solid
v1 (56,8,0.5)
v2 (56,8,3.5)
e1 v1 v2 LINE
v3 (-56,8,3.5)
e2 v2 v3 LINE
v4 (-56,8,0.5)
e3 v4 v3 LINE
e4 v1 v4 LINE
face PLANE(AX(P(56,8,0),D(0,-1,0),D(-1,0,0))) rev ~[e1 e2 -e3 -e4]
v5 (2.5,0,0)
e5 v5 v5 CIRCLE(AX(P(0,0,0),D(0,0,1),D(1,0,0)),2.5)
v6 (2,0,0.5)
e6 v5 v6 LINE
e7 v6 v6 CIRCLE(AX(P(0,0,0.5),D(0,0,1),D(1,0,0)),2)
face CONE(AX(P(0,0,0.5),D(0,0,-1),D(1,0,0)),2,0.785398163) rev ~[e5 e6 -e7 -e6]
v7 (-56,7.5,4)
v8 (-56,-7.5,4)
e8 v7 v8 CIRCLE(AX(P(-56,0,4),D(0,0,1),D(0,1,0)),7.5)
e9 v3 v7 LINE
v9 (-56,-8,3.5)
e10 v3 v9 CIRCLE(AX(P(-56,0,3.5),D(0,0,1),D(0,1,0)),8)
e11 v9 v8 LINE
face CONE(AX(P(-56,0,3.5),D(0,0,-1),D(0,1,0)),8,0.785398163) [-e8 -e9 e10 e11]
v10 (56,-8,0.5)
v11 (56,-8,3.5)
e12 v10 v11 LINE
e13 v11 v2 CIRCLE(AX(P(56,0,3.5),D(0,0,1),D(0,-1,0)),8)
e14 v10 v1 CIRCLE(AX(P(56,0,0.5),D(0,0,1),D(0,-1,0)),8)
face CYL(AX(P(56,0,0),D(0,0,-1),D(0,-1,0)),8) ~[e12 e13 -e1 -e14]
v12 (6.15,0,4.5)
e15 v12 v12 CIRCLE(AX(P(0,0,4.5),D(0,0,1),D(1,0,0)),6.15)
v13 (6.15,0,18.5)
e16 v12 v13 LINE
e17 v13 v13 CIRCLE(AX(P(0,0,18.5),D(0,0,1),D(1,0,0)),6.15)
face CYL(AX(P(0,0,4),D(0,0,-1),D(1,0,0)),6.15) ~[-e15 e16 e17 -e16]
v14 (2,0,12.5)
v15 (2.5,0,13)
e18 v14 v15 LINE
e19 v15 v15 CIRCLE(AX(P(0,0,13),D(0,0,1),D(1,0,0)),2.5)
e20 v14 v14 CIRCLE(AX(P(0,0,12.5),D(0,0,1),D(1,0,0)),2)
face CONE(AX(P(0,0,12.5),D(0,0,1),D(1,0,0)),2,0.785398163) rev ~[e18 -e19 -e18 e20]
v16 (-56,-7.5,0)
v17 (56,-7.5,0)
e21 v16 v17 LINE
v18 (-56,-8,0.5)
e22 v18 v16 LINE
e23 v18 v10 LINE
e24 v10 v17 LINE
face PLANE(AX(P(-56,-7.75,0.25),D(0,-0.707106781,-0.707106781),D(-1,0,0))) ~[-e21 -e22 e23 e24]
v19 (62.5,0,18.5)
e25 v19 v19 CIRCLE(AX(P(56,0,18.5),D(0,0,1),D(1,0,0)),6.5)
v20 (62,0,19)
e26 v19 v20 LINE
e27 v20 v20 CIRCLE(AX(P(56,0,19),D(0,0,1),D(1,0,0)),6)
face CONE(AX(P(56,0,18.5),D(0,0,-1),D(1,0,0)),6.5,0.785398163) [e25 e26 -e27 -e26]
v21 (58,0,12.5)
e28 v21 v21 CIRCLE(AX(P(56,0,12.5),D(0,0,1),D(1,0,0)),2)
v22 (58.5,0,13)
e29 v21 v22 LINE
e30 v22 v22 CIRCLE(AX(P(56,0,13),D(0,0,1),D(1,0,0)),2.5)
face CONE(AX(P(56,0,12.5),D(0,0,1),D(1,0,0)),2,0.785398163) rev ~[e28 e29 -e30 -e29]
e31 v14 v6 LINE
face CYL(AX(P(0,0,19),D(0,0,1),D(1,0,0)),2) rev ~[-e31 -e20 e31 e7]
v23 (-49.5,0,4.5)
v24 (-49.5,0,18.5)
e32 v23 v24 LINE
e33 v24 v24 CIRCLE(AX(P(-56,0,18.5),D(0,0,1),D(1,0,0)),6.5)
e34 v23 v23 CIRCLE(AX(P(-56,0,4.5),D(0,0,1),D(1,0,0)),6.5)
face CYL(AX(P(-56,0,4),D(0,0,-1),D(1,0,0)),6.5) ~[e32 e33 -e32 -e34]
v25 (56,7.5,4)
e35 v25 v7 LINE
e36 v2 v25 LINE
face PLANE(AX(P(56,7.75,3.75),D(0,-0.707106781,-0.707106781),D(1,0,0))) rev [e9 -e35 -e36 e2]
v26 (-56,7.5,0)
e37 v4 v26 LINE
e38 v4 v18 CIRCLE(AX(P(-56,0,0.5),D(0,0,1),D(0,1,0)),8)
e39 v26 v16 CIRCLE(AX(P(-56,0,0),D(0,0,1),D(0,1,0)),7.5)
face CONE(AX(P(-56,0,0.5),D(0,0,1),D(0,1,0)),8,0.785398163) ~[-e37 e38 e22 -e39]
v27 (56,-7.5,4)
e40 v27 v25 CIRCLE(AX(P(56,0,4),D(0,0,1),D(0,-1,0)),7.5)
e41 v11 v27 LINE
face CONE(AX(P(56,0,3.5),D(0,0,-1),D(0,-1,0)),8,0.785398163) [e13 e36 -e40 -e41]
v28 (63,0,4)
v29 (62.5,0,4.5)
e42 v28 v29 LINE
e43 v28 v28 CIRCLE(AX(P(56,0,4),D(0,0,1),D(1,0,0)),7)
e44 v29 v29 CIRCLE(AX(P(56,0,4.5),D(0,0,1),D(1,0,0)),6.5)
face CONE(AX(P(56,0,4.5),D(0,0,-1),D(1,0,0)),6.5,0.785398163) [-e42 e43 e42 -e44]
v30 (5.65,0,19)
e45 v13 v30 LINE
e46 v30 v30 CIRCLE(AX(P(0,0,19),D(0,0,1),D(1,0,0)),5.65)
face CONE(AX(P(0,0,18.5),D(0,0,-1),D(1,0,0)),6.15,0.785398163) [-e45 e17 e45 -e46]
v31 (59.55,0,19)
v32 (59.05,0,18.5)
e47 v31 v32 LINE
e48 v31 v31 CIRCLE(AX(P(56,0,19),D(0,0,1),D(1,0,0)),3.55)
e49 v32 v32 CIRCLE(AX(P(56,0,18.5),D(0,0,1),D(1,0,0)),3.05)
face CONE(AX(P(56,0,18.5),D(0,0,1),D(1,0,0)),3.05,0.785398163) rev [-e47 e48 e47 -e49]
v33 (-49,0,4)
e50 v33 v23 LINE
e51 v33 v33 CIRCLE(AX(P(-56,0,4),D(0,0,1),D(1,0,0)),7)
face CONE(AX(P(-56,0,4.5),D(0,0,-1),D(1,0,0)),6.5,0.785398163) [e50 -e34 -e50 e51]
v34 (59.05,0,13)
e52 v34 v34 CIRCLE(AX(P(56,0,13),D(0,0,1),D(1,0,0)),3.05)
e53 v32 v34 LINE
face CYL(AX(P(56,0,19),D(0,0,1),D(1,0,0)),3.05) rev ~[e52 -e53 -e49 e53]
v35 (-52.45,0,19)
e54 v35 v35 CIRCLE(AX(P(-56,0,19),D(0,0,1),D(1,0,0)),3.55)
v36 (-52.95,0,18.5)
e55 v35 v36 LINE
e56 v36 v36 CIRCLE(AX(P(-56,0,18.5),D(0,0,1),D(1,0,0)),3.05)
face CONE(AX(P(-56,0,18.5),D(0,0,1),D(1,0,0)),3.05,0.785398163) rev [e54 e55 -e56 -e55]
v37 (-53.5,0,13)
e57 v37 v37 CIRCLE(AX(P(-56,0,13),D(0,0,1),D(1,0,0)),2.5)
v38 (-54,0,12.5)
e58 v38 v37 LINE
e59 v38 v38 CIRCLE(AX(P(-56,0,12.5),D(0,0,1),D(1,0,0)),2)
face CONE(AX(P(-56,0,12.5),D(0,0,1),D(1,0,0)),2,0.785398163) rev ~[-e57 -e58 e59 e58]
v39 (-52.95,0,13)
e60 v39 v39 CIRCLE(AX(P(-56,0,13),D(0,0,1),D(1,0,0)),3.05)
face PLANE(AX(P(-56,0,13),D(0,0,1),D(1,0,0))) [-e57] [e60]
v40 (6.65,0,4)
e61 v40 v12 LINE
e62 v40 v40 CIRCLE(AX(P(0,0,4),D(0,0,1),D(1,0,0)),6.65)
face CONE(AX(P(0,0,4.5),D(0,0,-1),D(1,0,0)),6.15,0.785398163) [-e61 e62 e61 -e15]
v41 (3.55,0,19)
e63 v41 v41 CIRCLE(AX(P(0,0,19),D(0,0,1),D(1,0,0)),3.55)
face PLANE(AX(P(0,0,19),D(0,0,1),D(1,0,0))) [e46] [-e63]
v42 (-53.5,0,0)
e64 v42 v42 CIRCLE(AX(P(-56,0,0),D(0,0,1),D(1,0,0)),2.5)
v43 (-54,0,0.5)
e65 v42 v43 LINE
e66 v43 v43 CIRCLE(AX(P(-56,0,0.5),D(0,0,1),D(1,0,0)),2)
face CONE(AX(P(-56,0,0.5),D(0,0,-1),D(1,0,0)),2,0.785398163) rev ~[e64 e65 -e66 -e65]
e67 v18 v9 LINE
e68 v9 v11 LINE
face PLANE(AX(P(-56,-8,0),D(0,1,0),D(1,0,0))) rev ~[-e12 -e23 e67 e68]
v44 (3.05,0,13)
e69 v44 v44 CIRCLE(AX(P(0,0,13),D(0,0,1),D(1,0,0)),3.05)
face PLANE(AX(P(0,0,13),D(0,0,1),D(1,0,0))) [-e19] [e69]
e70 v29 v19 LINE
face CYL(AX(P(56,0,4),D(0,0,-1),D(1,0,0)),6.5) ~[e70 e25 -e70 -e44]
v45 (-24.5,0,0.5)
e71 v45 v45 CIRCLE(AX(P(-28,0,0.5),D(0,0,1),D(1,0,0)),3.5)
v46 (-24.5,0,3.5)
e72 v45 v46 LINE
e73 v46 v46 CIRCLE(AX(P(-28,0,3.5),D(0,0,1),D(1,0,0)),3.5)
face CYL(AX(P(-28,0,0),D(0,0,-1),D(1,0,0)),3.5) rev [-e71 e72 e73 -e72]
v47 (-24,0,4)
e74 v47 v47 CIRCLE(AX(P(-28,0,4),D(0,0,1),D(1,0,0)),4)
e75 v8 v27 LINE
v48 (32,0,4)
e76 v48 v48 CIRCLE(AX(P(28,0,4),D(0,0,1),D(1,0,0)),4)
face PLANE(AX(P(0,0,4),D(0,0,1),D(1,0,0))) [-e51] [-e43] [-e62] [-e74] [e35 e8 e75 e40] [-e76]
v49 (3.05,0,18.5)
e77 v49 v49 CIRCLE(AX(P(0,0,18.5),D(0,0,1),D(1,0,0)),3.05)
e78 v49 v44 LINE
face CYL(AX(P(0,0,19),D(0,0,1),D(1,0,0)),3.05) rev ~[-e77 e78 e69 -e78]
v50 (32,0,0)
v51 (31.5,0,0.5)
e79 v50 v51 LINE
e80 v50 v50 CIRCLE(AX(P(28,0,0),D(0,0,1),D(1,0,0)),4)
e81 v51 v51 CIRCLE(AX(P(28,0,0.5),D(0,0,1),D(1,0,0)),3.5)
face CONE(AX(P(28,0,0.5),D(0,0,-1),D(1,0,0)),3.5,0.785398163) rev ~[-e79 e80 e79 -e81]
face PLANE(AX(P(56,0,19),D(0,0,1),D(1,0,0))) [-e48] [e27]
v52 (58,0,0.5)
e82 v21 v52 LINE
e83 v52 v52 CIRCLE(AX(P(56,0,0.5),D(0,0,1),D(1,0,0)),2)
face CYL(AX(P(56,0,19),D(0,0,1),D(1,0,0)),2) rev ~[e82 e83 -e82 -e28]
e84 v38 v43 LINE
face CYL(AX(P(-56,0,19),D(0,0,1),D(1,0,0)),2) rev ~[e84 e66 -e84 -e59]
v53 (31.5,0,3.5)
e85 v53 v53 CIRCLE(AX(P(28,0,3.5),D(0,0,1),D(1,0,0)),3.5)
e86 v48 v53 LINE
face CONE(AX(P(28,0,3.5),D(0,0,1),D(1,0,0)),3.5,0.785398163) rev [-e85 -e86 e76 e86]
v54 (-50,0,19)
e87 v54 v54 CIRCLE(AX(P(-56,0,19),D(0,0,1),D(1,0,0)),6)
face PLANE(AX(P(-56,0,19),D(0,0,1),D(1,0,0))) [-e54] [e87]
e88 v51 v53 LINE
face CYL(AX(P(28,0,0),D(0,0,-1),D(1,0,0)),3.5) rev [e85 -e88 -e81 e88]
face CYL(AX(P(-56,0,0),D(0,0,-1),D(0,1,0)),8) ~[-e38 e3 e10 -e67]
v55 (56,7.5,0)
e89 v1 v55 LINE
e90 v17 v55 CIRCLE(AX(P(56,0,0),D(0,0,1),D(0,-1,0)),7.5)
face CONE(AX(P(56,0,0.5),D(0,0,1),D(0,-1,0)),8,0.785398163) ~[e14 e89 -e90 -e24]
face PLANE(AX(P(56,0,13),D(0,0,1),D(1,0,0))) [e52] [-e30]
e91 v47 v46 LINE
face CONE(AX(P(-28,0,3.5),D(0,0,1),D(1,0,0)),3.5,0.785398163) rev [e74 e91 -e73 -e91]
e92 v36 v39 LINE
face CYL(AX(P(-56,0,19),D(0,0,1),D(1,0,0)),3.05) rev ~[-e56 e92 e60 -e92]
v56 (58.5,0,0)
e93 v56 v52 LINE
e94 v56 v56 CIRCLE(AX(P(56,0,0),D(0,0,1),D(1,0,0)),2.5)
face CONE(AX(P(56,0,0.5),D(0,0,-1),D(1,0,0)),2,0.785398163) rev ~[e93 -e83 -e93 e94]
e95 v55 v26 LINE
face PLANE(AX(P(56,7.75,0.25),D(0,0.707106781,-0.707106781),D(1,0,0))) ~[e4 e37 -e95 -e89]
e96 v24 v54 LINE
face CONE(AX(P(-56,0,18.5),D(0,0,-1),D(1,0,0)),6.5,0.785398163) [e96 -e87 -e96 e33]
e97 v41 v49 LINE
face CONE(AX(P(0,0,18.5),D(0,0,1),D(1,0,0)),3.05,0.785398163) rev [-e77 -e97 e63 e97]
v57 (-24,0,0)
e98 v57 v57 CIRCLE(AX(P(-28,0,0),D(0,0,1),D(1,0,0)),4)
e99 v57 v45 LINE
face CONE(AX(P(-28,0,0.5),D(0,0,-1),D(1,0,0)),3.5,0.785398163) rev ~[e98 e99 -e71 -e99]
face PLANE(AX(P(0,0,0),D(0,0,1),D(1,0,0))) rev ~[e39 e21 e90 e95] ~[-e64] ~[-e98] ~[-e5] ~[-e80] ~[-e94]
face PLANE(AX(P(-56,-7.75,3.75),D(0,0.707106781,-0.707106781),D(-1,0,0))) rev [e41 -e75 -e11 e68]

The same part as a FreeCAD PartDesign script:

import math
import FreeCAD as App
import Part
import Sketcher

V = App.Vector


def edges_at(feature, points):
    """Names of the edges that pass closest to the given points."""
    edges = feature.Shape.Edges
    near = lambda p: min(range(len(edges)), key=lambda i: edges[i].distToShape(Part.Vertex(*p))[0])
    return sorted({f"Edge{near(p) + 1}" for p in points})

doc = App.newDocument("Part")
body = doc.addObject("PartDesign::Body", "Body")

# Sketch on XY plane
sketch1 = body.newObject("Sketcher::SketchObject", "Sketch")
sketch1.AttachmentSupport = (doc.getObject("XY_Plane"), [""])
sketch1.MapMode = "FlatFace"
sketch1.addGeometry(Part.LineSegment(V(-56, -8, 0), V(56, -8, 0)), False)
sketch1.addGeometry(Part.ArcOfCircle(Part.Circle(V(56, 0, 0), V(0, 0, 1), 8), math.radians(-90), math.radians(90)), False)
sketch1.addGeometry(Part.LineSegment(V(56, 8, 0), V(-56, 8, 0)), False)
sketch1.addGeometry(Part.ArcOfCircle(Part.Circle(V(-56, 0, 0), V(0, 0, 1), 8), math.radians(90), math.radians(270)), False)
sketch1.addGeometry(Part.Circle(V(-28, 0, 0), V(0, 0, 1), 3.5), False)
sketch1.addGeometry(Part.Circle(V(28, 0, 0), V(0, 0, 1), 3.5), False)
sketch1.addConstraint(Sketcher.Constraint("Tangent", 0, 2, 1, 1))
sketch1.addConstraint(Sketcher.Constraint("Tangent", 1, 2, 2, 1))
sketch1.addConstraint(Sketcher.Constraint("Tangent", 2, 2, 3, 1))
sketch1.addConstraint(Sketcher.Constraint("Tangent", 3, 2, 0, 1))
sketch1.addConstraint(Sketcher.Constraint("Horizontal", 0))
sketch1.addConstraint(Sketcher.Constraint("Horizontal", 2))
sketch1.addConstraint(Sketcher.Constraint("Equal", 4, 5))
sketch1.addConstraint(Sketcher.Constraint("Symmetric", 1, 3, 3, 3, -1, 1))
sketch1.addConstraint(Sketcher.Constraint("Symmetric", 4, 3, 5, 3, -1, 1))
sketch1.addConstraint(Sketcher.Constraint("PointOnObject", 4, 3, -1))
sketch1.addConstraint(Sketcher.Constraint("Diameter", 4, 7.0))
sketch1.addConstraint(Sketcher.Constraint("Radius", 1, 8.0))
sketch1.addConstraint(Sketcher.Constraint("DistanceX", 0, 1, 0, 2, 112.0))
sketch1.addConstraint(Sketcher.Constraint("DistanceX", 4, 3, -1, 1, 28.0))
pad1 = body.newObject("PartDesign::Pad", "Pad")
pad1.Profile = sketch1
pad1.Length = 4

# Sketch on XY plane
sketch2 = body.newObject("Sketcher::SketchObject", "Sketch001")
sketch2.AttachmentSupport = (doc.getObject("XY_Plane"), [""])
sketch2.MapMode = "FlatFace"
sketch2.AttachmentOffset = App.Placement(V(0, 0, 4), App.Rotation())
sketch2.addGeometry(Part.Circle(V(-56, 0, 0), V(0, 0, 1), 6), False)
sketch2.addGeometry(Part.Circle(V(56, 0, 0), V(0, 0, 1), 6), False)
sketch2.addGeometry(Part.Circle(V(0, 0, 0), V(0, 0, 1), 6), False)
sketch2.addConstraint(Sketcher.Constraint("Coincident", 2, 3, -1, 1))
sketch2.addConstraint(Sketcher.Constraint("Equal", 0, 1))
sketch2.addConstraint(Sketcher.Constraint("Symmetric", 0, 3, 1, 3, -1, 1))
sketch2.addConstraint(Sketcher.Constraint("PointOnObject", 0, 3, -1))
sketch2.addConstraint(Sketcher.Constraint("Diameter", 0, 13.0))
sketch2.addConstraint(Sketcher.Constraint("Diameter", 2, 12.3))
sketch2.addConstraint(Sketcher.Constraint("DistanceX", 0, 3, -1, 1, 56.0))
pad2 = body.newObject("PartDesign::Pad", "Pad001")
pad2.Profile = sketch2
pad2.Length = 15

# Sketch on XY plane
sketch3 = body.newObject("Sketcher::SketchObject", "Sketch002")
sketch3.AttachmentSupport = (doc.getObject("XY_Plane"), [""])
sketch3.MapMode = "FlatFace"
sketch3.AttachmentOffset = App.Placement(V(0, 0, 19), App.Rotation())
sketch3.addGeometry(Part.Circle(V(56, 0, 0), V(0, 0, 1), 2), False)
sketch3.addGeometry(Part.Circle(V(0, 0, 0), V(0, 0, 1), 2), False)
sketch3.addGeometry(Part.Circle(V(-56, 0, 0), V(0, 0, 1), 2), False)
sketch3.addConstraint(Sketcher.Constraint("Coincident", 1, 3, -1, 1))
sketch3.addConstraint(Sketcher.Constraint("Equal", 0, 1))
sketch3.addConstraint(Sketcher.Constraint("Equal", 1, 2))
sketch3.addConstraint(Sketcher.Constraint("Symmetric", 0, 3, 2, 3, -1, 1))
sketch3.addConstraint(Sketcher.Constraint("PointOnObject", 0, 3, -1))
sketch3.addConstraint(Sketcher.Constraint("Diameter", 0, 4.0))
sketch3.addConstraint(Sketcher.Constraint("DistanceX", -1, 1, 0, 3, 56.0))
pocket1 = body.newObject("PartDesign::Pocket", "Pocket")
pocket1.Profile = sketch3
pocket1.Length = 25

# Sketch on XY plane
sketch4 = body.newObject("Sketcher::SketchObject", "Sketch003")
sketch4.AttachmentSupport = (doc.getObject("XY_Plane"), [""])
sketch4.MapMode = "FlatFace"
sketch4.AttachmentOffset = App.Placement(V(0, 0, 19), App.Rotation())
sketch4.addGeometry(Part.Circle(V(-56, 0, 0), V(0, 0, 1), 3), False)
sketch4.addGeometry(Part.Circle(V(0, 0, 0), V(0, 0, 1), 3), False)
sketch4.addGeometry(Part.Circle(V(56, 0, 0), V(0, 0, 1), 3), False)
sketch4.addConstraint(Sketcher.Constraint("Coincident", 1, 3, -1, 1))
sketch4.addConstraint(Sketcher.Constraint("Equal", 0, 1))
sketch4.addConstraint(Sketcher.Constraint("Equal", 1, 2))
sketch4.addConstraint(Sketcher.Constraint("Symmetric", 0, 3, 2, 3, -1, 1))
sketch4.addConstraint(Sketcher.Constraint("PointOnObject", 0, 3, -1))
sketch4.addConstraint(Sketcher.Constraint("Diameter", 0, 6.1))
sketch4.addConstraint(Sketcher.Constraint("DistanceX", 0, 3, -1, 1, 56.0))
pocket2 = body.newObject("PartDesign::Pocket", "Pocket001")
pocket2.Profile = sketch4
pocket2.Length = 6
doc.recompute()

chamfer = body.newObject("PartDesign::Chamfer", "Chamfer")
chamfer.Base = (pocket2, edges_at(pocket2, [
    (-62.5, 0, 19),
    (-59.05, 0, 19),
    (-6.15, 0, 19),
    (-3.05, 0, 19),
    (49.5, 0, 19),
    (52.95, 0, 19),
    (-64, 0, 4),
    (0, 8, 4),
    (0, -8, 4),
    (64, 0, 4),
    (-62.5, 0, 4),
    (-31.5, 0, 4),
    (-6.15, 0, 4),
    (24.5, 0, 4),
    (49.5, 0, 4),
    (-64, 0, 0),
    (0, 8, 0),
    (0, -8, 0),
    (64, 0, 0),
    (-58, 0, 0),
    (-31.5, 0, 0),
    (-2, 0, 0),
    (24.5, 0, 0),
    (54, 0, 0),
    (-58, 0, 13),
    (-2, 0, 13),
    (54, 0, 13),
]))
chamfer.Size = 0.5

doc.recompute()
